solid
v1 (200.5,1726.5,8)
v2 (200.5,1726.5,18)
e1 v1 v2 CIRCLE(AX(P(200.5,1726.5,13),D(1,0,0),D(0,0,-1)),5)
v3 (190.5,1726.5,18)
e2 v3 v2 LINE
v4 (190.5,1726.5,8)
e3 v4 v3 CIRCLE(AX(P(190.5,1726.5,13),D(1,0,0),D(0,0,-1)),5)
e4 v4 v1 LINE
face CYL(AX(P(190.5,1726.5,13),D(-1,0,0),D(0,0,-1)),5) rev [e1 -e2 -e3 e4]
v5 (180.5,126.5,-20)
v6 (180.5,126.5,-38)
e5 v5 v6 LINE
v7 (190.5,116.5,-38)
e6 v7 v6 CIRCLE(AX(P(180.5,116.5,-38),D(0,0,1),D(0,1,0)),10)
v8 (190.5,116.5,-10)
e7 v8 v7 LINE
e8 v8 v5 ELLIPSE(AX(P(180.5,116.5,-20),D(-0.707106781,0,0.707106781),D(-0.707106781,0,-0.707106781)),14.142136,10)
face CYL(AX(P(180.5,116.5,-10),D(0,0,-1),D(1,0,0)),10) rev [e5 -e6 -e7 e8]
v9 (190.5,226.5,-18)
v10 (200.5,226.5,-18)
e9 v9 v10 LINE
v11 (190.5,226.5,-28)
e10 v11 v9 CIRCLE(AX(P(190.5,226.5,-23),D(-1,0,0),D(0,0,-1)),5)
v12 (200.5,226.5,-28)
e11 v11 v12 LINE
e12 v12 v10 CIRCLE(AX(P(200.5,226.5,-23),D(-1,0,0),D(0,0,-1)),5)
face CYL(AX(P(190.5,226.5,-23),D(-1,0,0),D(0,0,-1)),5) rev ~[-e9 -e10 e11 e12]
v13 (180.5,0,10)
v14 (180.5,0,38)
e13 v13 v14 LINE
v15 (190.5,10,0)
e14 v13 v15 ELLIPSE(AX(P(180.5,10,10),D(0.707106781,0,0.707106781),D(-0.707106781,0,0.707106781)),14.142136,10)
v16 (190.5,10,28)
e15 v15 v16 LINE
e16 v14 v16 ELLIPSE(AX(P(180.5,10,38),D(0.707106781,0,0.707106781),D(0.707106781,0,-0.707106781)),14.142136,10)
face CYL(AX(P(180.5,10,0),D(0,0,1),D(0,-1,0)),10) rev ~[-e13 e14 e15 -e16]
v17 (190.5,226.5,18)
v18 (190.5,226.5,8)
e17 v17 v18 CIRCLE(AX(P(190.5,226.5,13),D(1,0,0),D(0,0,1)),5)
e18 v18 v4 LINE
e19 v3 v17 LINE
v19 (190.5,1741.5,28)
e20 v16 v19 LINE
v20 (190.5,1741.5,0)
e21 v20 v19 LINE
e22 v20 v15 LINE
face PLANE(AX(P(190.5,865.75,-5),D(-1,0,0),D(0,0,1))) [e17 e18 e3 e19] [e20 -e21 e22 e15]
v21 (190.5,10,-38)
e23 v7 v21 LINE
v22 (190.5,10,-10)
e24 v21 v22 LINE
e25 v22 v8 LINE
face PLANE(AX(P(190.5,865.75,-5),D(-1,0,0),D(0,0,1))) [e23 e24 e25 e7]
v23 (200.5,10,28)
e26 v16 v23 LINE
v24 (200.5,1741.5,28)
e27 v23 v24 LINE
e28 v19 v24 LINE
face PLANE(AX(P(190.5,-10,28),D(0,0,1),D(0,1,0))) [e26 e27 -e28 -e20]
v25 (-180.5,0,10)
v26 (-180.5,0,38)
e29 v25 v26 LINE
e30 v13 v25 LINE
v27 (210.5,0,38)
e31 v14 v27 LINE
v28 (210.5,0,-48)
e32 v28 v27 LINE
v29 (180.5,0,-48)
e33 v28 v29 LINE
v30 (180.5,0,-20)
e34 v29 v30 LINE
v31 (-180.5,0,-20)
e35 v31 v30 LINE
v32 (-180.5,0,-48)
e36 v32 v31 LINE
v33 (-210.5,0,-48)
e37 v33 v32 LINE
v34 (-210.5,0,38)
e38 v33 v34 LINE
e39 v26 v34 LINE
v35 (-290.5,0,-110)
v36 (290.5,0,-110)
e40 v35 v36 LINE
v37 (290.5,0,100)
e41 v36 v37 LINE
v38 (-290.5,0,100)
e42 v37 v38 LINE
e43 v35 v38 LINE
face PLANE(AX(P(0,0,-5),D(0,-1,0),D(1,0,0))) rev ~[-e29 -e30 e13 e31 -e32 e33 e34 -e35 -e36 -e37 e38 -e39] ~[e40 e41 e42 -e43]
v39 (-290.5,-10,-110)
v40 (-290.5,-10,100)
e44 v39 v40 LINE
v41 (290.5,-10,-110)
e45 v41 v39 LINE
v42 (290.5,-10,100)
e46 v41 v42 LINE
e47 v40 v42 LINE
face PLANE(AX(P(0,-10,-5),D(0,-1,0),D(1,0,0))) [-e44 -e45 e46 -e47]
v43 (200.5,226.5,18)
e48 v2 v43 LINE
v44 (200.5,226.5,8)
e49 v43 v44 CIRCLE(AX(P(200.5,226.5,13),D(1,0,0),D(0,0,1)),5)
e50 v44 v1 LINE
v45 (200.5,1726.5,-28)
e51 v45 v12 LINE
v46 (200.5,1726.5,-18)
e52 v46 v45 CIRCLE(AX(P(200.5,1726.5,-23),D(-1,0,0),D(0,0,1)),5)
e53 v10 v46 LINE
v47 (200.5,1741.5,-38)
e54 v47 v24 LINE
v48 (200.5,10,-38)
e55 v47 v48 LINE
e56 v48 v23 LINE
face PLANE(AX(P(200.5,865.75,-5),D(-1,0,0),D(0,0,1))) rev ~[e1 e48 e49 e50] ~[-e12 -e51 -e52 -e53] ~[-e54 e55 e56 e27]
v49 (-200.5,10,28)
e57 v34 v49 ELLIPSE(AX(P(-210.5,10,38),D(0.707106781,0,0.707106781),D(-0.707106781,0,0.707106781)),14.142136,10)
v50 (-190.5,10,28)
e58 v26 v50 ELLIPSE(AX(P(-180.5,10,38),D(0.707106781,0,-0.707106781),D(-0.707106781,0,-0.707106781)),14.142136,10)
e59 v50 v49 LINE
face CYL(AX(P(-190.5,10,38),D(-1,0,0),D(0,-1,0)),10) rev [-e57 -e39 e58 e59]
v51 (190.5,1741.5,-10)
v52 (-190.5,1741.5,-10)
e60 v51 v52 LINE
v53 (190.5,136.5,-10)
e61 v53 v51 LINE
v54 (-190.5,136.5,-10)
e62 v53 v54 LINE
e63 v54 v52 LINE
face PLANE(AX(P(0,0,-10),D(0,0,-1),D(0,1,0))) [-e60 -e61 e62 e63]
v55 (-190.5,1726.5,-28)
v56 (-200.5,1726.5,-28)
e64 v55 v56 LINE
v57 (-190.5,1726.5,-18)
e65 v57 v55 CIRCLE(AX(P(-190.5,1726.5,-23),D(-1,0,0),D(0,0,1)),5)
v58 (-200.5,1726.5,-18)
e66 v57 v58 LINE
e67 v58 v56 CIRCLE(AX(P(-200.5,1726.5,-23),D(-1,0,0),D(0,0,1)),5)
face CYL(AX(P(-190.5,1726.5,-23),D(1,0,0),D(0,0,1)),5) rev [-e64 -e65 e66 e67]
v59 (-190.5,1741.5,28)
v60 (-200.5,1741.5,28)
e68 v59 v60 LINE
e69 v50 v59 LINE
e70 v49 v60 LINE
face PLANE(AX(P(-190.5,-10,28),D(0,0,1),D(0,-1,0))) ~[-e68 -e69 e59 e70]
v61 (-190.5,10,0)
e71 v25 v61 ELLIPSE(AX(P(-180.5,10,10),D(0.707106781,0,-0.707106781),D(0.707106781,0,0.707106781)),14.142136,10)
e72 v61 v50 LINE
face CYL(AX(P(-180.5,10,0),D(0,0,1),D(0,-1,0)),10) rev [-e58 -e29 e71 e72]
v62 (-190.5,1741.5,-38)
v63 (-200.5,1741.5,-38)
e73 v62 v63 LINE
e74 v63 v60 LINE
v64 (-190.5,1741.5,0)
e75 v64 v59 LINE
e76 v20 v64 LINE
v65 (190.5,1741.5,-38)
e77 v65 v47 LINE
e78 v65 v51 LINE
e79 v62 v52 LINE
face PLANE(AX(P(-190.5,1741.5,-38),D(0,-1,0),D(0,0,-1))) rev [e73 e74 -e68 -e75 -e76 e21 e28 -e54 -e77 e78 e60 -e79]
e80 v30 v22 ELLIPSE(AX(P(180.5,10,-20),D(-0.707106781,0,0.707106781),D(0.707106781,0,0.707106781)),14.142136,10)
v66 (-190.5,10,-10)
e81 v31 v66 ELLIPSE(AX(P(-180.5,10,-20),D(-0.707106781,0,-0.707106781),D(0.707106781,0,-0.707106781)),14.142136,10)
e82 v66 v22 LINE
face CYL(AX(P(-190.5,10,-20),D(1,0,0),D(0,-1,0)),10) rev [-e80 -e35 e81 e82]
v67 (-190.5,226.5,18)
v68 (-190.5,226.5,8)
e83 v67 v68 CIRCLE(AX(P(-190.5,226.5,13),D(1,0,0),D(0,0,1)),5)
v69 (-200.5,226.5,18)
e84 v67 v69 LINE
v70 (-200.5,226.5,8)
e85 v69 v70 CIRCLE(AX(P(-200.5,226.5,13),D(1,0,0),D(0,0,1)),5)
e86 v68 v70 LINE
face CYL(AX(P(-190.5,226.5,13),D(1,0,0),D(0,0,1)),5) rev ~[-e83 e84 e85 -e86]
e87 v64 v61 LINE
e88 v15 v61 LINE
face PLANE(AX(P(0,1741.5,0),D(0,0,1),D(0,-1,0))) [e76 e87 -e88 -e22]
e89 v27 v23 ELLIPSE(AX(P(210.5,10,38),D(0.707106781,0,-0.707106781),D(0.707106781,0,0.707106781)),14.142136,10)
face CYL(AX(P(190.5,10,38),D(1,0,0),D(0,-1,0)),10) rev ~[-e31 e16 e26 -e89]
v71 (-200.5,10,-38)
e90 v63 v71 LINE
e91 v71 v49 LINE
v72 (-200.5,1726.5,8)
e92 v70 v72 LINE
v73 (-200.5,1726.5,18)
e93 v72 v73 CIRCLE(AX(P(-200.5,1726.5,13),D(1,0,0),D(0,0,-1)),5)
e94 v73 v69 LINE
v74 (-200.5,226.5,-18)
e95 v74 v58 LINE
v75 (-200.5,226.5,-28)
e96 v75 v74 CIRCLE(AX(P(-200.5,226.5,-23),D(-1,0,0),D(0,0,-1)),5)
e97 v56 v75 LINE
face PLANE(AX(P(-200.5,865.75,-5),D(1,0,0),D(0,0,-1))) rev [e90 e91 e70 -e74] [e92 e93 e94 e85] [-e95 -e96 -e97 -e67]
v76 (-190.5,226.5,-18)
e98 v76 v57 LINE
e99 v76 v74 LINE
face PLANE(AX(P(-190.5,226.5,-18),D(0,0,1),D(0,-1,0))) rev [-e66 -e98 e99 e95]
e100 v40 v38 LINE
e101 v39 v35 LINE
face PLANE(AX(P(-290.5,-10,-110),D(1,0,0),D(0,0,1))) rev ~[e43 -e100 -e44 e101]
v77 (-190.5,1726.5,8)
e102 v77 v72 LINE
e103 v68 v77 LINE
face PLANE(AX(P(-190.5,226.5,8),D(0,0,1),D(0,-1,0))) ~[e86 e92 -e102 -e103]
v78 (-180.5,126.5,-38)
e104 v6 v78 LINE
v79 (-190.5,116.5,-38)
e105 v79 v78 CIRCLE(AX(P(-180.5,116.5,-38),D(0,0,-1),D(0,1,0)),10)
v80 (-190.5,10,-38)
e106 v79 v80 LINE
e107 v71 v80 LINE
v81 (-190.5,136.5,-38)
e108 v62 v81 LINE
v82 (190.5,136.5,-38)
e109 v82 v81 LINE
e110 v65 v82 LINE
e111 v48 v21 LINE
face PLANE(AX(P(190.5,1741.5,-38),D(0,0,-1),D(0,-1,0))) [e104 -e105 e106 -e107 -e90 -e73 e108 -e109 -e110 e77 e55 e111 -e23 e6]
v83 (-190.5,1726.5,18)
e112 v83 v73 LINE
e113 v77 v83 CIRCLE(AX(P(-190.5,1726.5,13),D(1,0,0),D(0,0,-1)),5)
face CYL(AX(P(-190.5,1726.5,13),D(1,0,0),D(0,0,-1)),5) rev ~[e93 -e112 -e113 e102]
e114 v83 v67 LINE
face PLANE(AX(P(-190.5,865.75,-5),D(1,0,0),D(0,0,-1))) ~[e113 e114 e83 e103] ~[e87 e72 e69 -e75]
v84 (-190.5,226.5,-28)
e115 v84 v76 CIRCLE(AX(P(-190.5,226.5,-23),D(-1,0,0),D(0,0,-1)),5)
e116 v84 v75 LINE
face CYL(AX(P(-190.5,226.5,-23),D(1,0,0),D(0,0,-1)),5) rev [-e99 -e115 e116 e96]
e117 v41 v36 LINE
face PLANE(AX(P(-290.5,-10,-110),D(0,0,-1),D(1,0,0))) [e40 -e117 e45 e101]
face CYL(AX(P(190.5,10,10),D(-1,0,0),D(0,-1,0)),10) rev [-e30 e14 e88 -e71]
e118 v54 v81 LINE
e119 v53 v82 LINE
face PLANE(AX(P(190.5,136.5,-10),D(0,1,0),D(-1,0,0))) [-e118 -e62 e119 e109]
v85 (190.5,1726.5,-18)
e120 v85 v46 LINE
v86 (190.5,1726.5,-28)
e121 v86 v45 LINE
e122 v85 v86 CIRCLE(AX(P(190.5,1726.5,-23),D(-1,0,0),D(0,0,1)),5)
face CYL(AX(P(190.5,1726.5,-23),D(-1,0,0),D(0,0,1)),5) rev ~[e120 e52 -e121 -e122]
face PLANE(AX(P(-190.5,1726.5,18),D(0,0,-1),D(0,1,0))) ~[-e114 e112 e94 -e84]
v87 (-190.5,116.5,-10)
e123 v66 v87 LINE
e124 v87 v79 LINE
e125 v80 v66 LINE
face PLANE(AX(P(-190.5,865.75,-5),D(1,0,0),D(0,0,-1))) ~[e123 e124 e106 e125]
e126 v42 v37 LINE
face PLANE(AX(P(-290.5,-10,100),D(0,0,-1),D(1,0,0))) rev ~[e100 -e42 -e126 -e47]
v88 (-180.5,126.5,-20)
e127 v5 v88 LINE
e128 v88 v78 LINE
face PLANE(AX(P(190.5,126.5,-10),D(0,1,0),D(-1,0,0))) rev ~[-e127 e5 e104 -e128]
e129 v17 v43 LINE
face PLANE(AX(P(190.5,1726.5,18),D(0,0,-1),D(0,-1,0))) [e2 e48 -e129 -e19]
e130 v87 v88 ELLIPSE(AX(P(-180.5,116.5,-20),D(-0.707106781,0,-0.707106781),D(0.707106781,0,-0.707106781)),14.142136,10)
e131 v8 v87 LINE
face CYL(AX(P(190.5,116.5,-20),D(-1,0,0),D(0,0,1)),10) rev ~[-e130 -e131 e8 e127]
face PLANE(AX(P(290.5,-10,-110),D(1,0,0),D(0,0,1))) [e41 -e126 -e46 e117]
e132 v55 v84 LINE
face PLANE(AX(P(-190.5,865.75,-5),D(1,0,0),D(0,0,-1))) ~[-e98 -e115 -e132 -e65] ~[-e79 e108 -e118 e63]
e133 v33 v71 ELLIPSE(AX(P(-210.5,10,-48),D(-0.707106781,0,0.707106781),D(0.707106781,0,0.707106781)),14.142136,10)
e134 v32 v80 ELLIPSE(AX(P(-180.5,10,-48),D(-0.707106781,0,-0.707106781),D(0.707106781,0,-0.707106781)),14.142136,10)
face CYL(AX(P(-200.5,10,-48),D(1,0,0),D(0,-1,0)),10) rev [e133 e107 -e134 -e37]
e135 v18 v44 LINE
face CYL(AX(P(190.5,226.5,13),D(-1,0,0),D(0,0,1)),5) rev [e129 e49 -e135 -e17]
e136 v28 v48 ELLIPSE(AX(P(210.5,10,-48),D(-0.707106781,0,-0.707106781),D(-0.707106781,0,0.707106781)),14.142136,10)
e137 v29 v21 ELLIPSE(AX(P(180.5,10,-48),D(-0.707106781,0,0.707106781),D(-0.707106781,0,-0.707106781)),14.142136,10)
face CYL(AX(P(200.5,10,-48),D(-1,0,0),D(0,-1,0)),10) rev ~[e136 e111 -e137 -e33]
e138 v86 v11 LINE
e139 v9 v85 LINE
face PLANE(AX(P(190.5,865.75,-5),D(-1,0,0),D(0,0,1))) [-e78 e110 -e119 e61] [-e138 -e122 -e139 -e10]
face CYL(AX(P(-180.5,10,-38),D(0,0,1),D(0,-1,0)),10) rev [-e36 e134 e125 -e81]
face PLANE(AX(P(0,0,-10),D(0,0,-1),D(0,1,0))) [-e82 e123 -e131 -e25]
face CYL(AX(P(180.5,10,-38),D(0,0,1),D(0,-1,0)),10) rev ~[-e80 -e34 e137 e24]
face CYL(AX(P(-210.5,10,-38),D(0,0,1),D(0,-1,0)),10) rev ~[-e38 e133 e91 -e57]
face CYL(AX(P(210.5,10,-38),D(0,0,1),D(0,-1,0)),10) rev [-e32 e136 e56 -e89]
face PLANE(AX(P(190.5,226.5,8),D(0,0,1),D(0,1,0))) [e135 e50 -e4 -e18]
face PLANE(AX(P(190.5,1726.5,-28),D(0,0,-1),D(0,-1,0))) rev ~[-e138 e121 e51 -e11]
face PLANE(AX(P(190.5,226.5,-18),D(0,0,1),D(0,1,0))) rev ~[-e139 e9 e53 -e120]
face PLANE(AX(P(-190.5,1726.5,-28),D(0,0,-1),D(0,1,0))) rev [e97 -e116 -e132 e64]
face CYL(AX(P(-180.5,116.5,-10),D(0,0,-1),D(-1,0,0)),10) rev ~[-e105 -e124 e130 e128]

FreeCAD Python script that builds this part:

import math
import FreeCAD as App
import Part
import Sketcher
from FreeCAD import Vector


def edges_at(feature, points):
    """Names of the edges that pass closest to the given points."""
    edges = feature.Shape.Edges
    near = lambda p: min(range(len(edges)), key=lambda i: edges[i].distToShape(Part.Vertex(*p))[0])
    return sorted({f"Edge{near(p) + 1}" for p in points})

doc = App.newDocument("Part")
body = doc.addObject("PartDesign::Body", "Body")

# Sketch on YZ plane
sketch1 = body.newObject("Sketcher::SketchObject", "Sketch")
sketch1.AttachmentSupport = (doc.getObject("YZ_Plane"), [""])
sketch1.MapMode = "FlatFace"
sketch1.addGeometry([
    Part.LineSegment(Vector(0, 0, 0), Vector(0, 100, 0)),  # 0
    Part.LineSegment(Vector(0, 100, 0), Vector(-10, 100, 0)),  # 1
    Part.LineSegment(Vector(-10, 100, 0), Vector(-10, -110, 0)),  # 2
    Part.LineSegment(Vector(-10, -110, 0), Vector(0, -110, 0)),  # 3
    Part.LineSegment(Vector(0, -110, 0), Vector(0, -10, 0)),  # 4
    Part.LineSegment(Vector(0, -10, 0), Vector(1741.5, -10, 0)),  # 5
    Part.LineSegment(Vector(1741.5, -10, 0), Vector(1741.5, 0, 0)),  # 6
    Part.LineSegment(Vector(1741.5, 0, 0), Vector(0, 0, 0)),  # 7
], False)
sketch1.addConstraint([
    Sketcher.Constraint("Coincident", 0, 2, 1, 1),
    Sketcher.Constraint("Coincident", 1, 2, 2, 1),
    Sketcher.Constraint("Coincident", 2, 2, 3, 1),
    Sketcher.Constraint("Coincident", 3, 2, 4, 1),
    Sketcher.Constraint("Coincident", 4, 2, 5, 1),
    Sketcher.Constraint("Coincident", 5, 2, 6, 1),
    Sketcher.Constraint("Coincident", 6, 2, 7, 1),
    Sketcher.Constraint("Coincident", 7, 2, 0, 1),
    Sketcher.Constraint("Vertical", 0),
    Sketcher.Constraint("Horizontal", 1),
    Sketcher.Constraint("Vertical", 2),
    Sketcher.Constraint("Horizontal", 3),
    Sketcher.Constraint("Vertical", 4),
    Sketcher.Constraint("Horizontal", 5),
    Sketcher.Constraint("Vertical", 6),
    Sketcher.Constraint("Horizontal", 7),
    Sketcher.Constraint("Coincident", 7, 2, -1, 1),
    Sketcher.Constraint("PointOnObject", 3, 2, -2),
    Sketcher.Constraint("Equal", 0, 4),
    Sketcher.Constraint("Equal", 3, 6),
    Sketcher.Constraint("DistanceX", 1, 2, 1, 1, 10.0),
    Sketcher.Constraint("DistanceY", 0, 1, 0, 2, 100.0),
    Sketcher.Constraint("DistanceX", 5, 1, 5, 2, 1741.5),
])
pad1 = body.newObject("PartDesign::Pad", "Pad")
pad1.Profile = sketch1
pad1.Length = 381
pad1.Midplane = True

# Sketch on YZ plane
sketch2 = body.newObject("Sketcher::SketchObject", "Sketch001")
sketch2.AttachmentSupport = (doc.getObject("YZ_Plane"), [""])
sketch2.MapMode = "FlatFace"
sketch2.AttachmentOffset = App.Placement(Vector(0, 0, 190.5), App.Rotation())
sketch2.addGeometry([
    Part.LineSegment(Vector(1741.5, -38, 0), Vector(1741.5, 28, 0)),  # 0
    Part.LineSegment(Vector(1741.5, 28, 0), Vector(-10, 28, 0)),  # 1
    Part.LineSegment(Vector(-10, 28, 0), Vector(-10, -38, 0)),  # 2
    Part.LineSegment(Vector(-10, -38, 0), Vector(1741.5, -38, 0)),  # 3
    Part.LineSegment(Vector(226.5, -18, 0), Vector(1726.5, -18, 0)),  # 4
    Part.ArcOfCircle(Part.Circle(Vector(1726.5, -23, 0), Vector(0, 0, 1), 5), math.radians(-90), math.radians(90)),  # 5
    Part.LineSegment(Vector(1726.5, -28, 0), Vector(226.5, -28, 0)),  # 6
    Part.ArcOfCircle(Part.Circle(Vector(226.5, -23, 0), Vector(0, 0, 1), 5), math.radians(90), math.radians(270)),  # 7
    Part.ArcOfCircle(Part.Circle(Vector(1726.5, 13, 0), Vector(0, 0, 1), 5), math.radians(-90), math.radians(90)),  # 8
    Part.LineSegment(Vector(1726.5, 8, 0), Vector(226.5, 8, 0)),  # 9
    Part.ArcOfCircle(Part.Circle(Vector(226.5, 13, 0), Vector(0, 0, 1), 5), math.radians(90), math.radians(270)),  # 10
    Part.LineSegment(Vector(226.5, 18, 0), Vector(1726.5, 18, 0)),  # 11
], False)
sketch2.addConstraint([
    Sketcher.Constraint("Coincident", 0, 2, 1, 1),
    Sketcher.Constraint("Coincident", 1, 2, 2, 1),
    Sketcher.Constraint("Coincident", 2, 2, 3, 1),
    Sketcher.Constraint("Coincident", 3, 2, 0, 1),
    Sketcher.Constraint("Tangent", 4, 2, 5, 2),
    Sketcher.Constraint("Tangent", 5, 1, 6, 1),
    Sketcher.Constraint("Tangent", 6, 2, 7, 2),
    Sketcher.Constraint("Tangent", 7, 1, 4, 1),
    Sketcher.Constraint("Tangent", 8, 1, 9, 1),
    Sketcher.Constraint("Tangent", 9, 2, 10, 2),
    Sketcher.Constraint("Tangent", 10, 1, 11, 1),
    Sketcher.Constraint("Tangent", 11, 2, 8, 2),
    Sketcher.Constraint("Vertical", 0),
    Sketcher.Constraint("Horizontal", 1),
    Sketcher.Constraint("Vertical", 2),
    Sketcher.Constraint("Horizontal", 3),
    Sketcher.Constraint("Horizontal", 4),
    Sketcher.Constraint("Horizontal", 6),
    Sketcher.Constraint("Horizontal", 9),
    Sketcher.Constraint("Horizontal", 11),
    Sketcher.Constraint("Equal", 7, 8),
    Sketcher.Constraint("Symmetric", 7, 1, 10, 1, -1),
    Sketcher.Constraint("Vertical", 5, 3, 8, 3),
    Sketcher.Constraint("Radius", 5, 5.0),
    Sketcher.Constraint("DistanceX", 4, 1, 4, 2, 1500.0),
    Sketcher.Constraint("DistanceY", 0, 1, 0, 2, 66.0),
    Sketcher.Constraint("DistanceX", 1, 2, 1, 1, 1751.5),
    Sketcher.Constraint("DistanceY", 5, 3, -1, 1, 23.0),
    Sketcher.Constraint("DistanceY", -1, 1, 0, 2, 28.0),
    Sketcher.Constraint("DistanceX", 1, 2, -1, 1, 10.0),
    Sketcher.Constraint("DistanceX", 8, 3, 0, 2, 15.0),
])
pad2 = body.newObject("PartDesign::Pad", "Pad001")
pad2.Profile = sketch2
pad2.Length = 10
doc.recompute()

mirrored = body.newObject("PartDesign::Mirrored", "Mirrored")
mirrored.Originals = [pad2]
mirrored.MirrorPlane = (doc.getObject("YZ_Plane"), [""])
body.Tip = mirrored

# Sketch on XZ plane
sketch3 = body.newObject("Sketcher::SketchObject", "Sketch002")
sketch3.AttachmentSupport = (doc.getObject("XZ_Plane"), [""])
sketch3.MapMode = "FlatFace"
sketch3.AttachmentOffset = App.Placement(Vector(0, 0, 10), App.Rotation())
sketch3.addGeometry([
    Part.LineSegment(Vector(-290.5, 100, 0), Vector(-290.5, -110, 0)),
    Part.LineSegment(Vector(-290.5, -110, 0), Vector(290.5, -110, 0)),
    Part.LineSegment(Vector(290.5, -110, 0), Vector(290.5, 100, 0)),
    Part.LineSegment(Vector(290.5, 100, 0), Vector(-290.5, 100, 0)),
], False)
sketch3.addConstraint([
    Sketcher.Constraint("Coincident", 0, 2, 1, 1),
    Sketcher.Constraint("Coincident", 1, 2, 2, 1),
    Sketcher.Constraint("Coincident", 2, 2, 3, 1),
    Sketcher.Constraint("Coincident", 3, 2, 0, 1),
    Sketcher.Constraint("Vertical", 0),
    Sketcher.Constraint("Horizontal", 1),
    Sketcher.Constraint("Vertical", 2),
    Sketcher.Constraint("Horizontal", 3),
    Sketcher.Constraint("DistanceX", 1, 1, 1, 2, 581.0),
    Sketcher.Constraint("DistanceY", 0, 2, 0, 1, 210.0),
    Sketcher.Constraint("DistanceY", 0, 2, -1, 1, 110.0),
    Sketcher.Constraint("DistanceX", 0, 2, -1, 1, 290.5),
])
pad3 = body.newObject("PartDesign::Pad", "Pad002")
pad3.Profile = sketch3
pad3.Length = 10
pad3.Reversed = True

# Sketch on XY plane
sketch4 = body.newObject("Sketcher::SketchObject", "Sketch003")
sketch4.AttachmentSupport = (doc.getObject("XY_Plane"), [""])
sketch4.MapMode = "FlatFace"
sketch4.AttachmentOffset = App.Placement(Vector(0, 0, -10), App.Rotation())
sketch4.addGeometry([
    Part.LineSegment(Vector(190.5, 136.5, 0), Vector(190.5, 126.5, 0)),
    Part.LineSegment(Vector(190.5, 126.5, 0), Vector(-190.5, 126.5, 0)),
    Part.LineSegment(Vector(-190.5, 126.5, 0), Vector(-190.5, 136.5, 0)),
    Part.LineSegment(Vector(-190.5, 136.5, 0), Vector(190.5, 136.5, 0)),
], False)
sketch4.addConstraint([
    Sketcher.Constraint("Coincident", 0, 2, 1, 1),
    Sketcher.Constraint("Coincident", 1, 2, 2, 1),
    Sketcher.Constraint("Coincident", 2, 2, 3, 1),
    Sketcher.Constraint("Coincident", 3, 2, 0, 1),
    Sketcher.Constraint("Vertical", 0),
    Sketcher.Constraint("Horizontal", 1),
    Sketcher.Constraint("Vertical", 2),
    Sketcher.Constraint("Horizontal", 3),
    Sketcher.Constraint("DistanceX", 1, 2, 1, 1, 381.0),
    Sketcher.Constraint("DistanceY", 0, 2, 0, 1, 10.0),
    Sketcher.Constraint("DistanceX", -1, 1, 0, 2, 190.5),
    Sketcher.Constraint("DistanceY", -1, 1, 0, 2, 126.5),
])
pad4 = body.newObject("PartDesign::Pad", "Pad003")
pad4.Profile = sketch4
pad4.Length = 28
pad4.Reversed = True
doc.recompute()

fillet = body.newObject("PartDesign::Fillet", "Fillet")
fillet.Base = (pad4, edges_at(pad4, [
    (195.5, 0, 28),
    (195.5, 0, -38),
    (200.5, 0, -5),
    (-195.5, 0, -38),
    (-200.5, 0, -5),
    (-195.5, 0, 28),
    (-190.5, 0, 14),
    (-190.5, 126.5, -24),
    (190.5, 126.5, -24),
    (0, 126.5, -10),
    (0, 0, -10),
    (0, 0, 0),
    (190.5, 0, -24),
    (-190.5, 0, -24),
    (190.5, 0, 14),
]))
fillet.Radius = 10

doc.recompute()
